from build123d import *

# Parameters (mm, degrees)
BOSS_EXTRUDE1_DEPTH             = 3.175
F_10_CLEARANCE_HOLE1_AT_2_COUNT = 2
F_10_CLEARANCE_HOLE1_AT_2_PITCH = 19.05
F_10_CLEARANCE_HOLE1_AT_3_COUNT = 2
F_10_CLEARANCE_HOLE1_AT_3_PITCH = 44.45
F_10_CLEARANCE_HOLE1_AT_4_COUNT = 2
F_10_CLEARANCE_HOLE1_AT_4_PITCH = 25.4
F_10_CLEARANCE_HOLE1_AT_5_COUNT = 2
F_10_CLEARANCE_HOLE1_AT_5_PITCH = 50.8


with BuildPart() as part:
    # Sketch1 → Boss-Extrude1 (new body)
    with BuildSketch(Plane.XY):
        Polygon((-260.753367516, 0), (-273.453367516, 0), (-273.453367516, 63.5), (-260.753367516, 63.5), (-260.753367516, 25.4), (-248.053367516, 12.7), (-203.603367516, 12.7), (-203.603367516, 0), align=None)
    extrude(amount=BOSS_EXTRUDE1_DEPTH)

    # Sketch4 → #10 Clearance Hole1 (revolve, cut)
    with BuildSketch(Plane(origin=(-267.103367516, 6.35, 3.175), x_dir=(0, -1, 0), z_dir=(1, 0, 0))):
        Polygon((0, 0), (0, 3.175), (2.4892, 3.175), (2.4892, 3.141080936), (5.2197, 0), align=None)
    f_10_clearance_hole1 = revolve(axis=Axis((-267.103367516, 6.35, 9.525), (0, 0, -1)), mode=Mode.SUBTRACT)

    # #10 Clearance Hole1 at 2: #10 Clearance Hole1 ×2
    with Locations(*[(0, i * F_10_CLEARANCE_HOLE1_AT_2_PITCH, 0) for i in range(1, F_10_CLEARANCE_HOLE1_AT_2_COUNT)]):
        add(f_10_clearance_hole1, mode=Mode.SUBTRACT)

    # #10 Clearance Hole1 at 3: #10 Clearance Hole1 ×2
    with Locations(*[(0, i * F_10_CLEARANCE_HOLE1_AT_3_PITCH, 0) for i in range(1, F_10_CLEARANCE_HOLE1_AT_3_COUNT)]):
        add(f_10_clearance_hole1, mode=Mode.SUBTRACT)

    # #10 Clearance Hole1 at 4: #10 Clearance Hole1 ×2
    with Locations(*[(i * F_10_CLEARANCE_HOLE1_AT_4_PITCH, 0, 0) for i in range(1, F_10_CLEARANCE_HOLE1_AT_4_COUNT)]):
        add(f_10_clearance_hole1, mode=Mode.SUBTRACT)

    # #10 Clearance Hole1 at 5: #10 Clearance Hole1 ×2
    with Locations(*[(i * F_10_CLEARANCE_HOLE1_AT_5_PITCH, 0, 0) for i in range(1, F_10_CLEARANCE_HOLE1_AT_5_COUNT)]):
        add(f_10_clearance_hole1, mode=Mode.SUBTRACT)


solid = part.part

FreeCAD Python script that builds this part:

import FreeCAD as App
import Part
import Sketcher
Q = App.Units.Quantity


def add_polygon(sketch, points):
    """Adds a closed chain of lines whose ends are joined by coincident constraints."""
    first, n = sketch.GeometryCount, len(points)
    for a, b in zip(points, points[1:] + points[:1]):
        sketch.addGeometry(Part.LineSegment(App.Vector(*a, 0), App.Vector(*b, 0)), False)
    for i in range(n):
        sketch.addConstraint(Sketcher.Constraint("Coincident", first + i, 2, first + (i + 1) % n, 1))

doc = App.newDocument("Part")
body = doc.addObject("PartDesign::Body", "Body")

# Sketch on XY plane
sketch1 = body.newObject("Sketcher::SketchObject", "Sketch")
sketch1.AttachmentSupport = (doc.getObject("XY_Plane"), [""])
sketch1.MapMode = "FlatFace"
add_polygon(sketch1, [(-273, 0), (-204, 0), (-204, 13), (-248, 13), (-261, 25), (-261, 64), (-273, 64)])  # lines 0-6
sketch1.addConstraint([
    Sketcher.Constraint("Horizontal", 0),
    Sketcher.Constraint("Vertical", 1),
    Sketcher.Constraint("Horizontal", 2),
    Sketcher.Constraint("Vertical", 4),
    Sketcher.Constraint("Horizontal", 5),
    Sketcher.Constraint("Vertical", 6),
    Sketcher.Constraint("PointOnObject", 0, 2, -1),
    Sketcher.Constraint("Equal", 5, 1),
    Sketcher.Constraint("DistanceX", 5, 2, 5, 1, Q("0.5 in")),
    Sketcher.Constraint("DistanceY", 4, 1, 4, 2, Q("1.5 in")),
    Sketcher.Constraint("DistanceY", 6, 2, 6, 1, Q("2.5 in")),
    Sketcher.Constraint("Angle", 3, Q("135 deg")),
    Sketcher.Constraint("DistanceX", 0, 1, 0, 2, Q("2.75 in")),
    Sketcher.Constraint("DistanceX", 0, 2, -1, 1, 203.603368),
])
pad1 = body.newObject("PartDesign::Pad", "Pad")
pad1.Profile = sketch1
pad1.Length = Q("0.125 in")

# Sketch on YZ plane
sketch2 = body.newObject("Sketcher::SketchObject", "Sketch001")
sketch2.AttachmentSupport = (doc.getObject("YZ_Plane"), [""])
sketch2.MapMode = "FlatFace"
sketch2.AttachmentOffset = App.Placement(App.Vector(0, 0, -267.103368), App.Rotation())
add_polygon(sketch2, [(6.35, 0), (6.35, 3.175), (1.13, 3.175), (3.861, 0.034), (3.861, 0)])  # lines 0-4
sketch2.addGeometry(Part.LineSegment(App.Vector(6.35, 3.175, 0), App.Vector(6.35, 0, 0)), True)  # axis
sketch2.addConstraint([
    Sketcher.Constraint("Vertical", 0),
    Sketcher.Constraint("Horizontal", 1),
    Sketcher.Constraint("Vertical", 3),
    Sketcher.Constraint("Horizontal", 4),
    Sketcher.Constraint("Vertical", 5),
    Sketcher.Constraint("Coincident", 5, 1, 0, 2),
    Sketcher.Constraint("PointOnObject", 3, 2, -1),
    Sketcher.Constraint("PointOnObject", 5, 2, -1),
    Sketcher.Constraint("Angle", 2, Q("-49 deg")),
    Sketcher.Constraint("DistanceX", 4, 1, 4, 2, Q("0.098 in")),
    Sketcher.Constraint("DistanceY", 0, 1, 0, 2, Q("0.125 in")),
    Sketcher.Constraint("DistanceX", -1, 1, 0, 2, Q("0.25 in")),
    Sketcher.Constraint("DistanceX", 1, 2, 1, 1, Q("0.2055 in")),
])
groove = body.newObject("PartDesign::Groove", "Groove")
groove.Profile = sketch2
groove.ReferenceAxis = (sketch2, ["Axis0"])
groove.Angle = 360
doc.recompute()

linearpattern = body.newObject("PartDesign::LinearPattern", "LinearPattern")
linearpattern.Originals = [groove]
linearpattern.Direction = (doc.getObject("Y_Axis"), [""])
linearpattern.Mode = "offset"
linearpattern.Offset = Q("0.75 in")
linearpattern.Occurrences = 2
body.Tip = linearpattern
doc.recompute()

linearpattern2 = body.newObject("PartDesign::LinearPattern", "LinearPattern001")
linearpattern2.Originals = [groove]
linearpattern2.Direction = (doc.getObject("Y_Axis"), [""])
linearpattern2.Mode = "offset"
linearpattern2.Offset = Q("1.75 in")
linearpattern2.Occurrences = 2
body.Tip = linearpattern2
doc.recompute()

linearpattern3 = body.newObject("PartDesign::LinearPattern", "LinearPattern002")
linearpattern3.Originals = [groove]
linearpattern3.Direction = (doc.getObject("X_Axis"), [""])
linearpattern3.Mode = "offset"
linearpattern3.Offset = Q("1 in")
linearpattern3.Occurrences = 2
body.Tip = linearpattern3
doc.recompute()

linearpattern4 = body.newObject("PartDesign::LinearPattern", "LinearPattern003")
linearpattern4.Originals = [groove]
linearpattern4.Direction = (doc.getObject("X_Axis"), [""])
linearpattern4.Mode = "offset"
linearpattern4.Offset = Q("2 in")
linearpattern4.Occurrences = 2
body.Tip = linearpattern4

doc.recompute()
